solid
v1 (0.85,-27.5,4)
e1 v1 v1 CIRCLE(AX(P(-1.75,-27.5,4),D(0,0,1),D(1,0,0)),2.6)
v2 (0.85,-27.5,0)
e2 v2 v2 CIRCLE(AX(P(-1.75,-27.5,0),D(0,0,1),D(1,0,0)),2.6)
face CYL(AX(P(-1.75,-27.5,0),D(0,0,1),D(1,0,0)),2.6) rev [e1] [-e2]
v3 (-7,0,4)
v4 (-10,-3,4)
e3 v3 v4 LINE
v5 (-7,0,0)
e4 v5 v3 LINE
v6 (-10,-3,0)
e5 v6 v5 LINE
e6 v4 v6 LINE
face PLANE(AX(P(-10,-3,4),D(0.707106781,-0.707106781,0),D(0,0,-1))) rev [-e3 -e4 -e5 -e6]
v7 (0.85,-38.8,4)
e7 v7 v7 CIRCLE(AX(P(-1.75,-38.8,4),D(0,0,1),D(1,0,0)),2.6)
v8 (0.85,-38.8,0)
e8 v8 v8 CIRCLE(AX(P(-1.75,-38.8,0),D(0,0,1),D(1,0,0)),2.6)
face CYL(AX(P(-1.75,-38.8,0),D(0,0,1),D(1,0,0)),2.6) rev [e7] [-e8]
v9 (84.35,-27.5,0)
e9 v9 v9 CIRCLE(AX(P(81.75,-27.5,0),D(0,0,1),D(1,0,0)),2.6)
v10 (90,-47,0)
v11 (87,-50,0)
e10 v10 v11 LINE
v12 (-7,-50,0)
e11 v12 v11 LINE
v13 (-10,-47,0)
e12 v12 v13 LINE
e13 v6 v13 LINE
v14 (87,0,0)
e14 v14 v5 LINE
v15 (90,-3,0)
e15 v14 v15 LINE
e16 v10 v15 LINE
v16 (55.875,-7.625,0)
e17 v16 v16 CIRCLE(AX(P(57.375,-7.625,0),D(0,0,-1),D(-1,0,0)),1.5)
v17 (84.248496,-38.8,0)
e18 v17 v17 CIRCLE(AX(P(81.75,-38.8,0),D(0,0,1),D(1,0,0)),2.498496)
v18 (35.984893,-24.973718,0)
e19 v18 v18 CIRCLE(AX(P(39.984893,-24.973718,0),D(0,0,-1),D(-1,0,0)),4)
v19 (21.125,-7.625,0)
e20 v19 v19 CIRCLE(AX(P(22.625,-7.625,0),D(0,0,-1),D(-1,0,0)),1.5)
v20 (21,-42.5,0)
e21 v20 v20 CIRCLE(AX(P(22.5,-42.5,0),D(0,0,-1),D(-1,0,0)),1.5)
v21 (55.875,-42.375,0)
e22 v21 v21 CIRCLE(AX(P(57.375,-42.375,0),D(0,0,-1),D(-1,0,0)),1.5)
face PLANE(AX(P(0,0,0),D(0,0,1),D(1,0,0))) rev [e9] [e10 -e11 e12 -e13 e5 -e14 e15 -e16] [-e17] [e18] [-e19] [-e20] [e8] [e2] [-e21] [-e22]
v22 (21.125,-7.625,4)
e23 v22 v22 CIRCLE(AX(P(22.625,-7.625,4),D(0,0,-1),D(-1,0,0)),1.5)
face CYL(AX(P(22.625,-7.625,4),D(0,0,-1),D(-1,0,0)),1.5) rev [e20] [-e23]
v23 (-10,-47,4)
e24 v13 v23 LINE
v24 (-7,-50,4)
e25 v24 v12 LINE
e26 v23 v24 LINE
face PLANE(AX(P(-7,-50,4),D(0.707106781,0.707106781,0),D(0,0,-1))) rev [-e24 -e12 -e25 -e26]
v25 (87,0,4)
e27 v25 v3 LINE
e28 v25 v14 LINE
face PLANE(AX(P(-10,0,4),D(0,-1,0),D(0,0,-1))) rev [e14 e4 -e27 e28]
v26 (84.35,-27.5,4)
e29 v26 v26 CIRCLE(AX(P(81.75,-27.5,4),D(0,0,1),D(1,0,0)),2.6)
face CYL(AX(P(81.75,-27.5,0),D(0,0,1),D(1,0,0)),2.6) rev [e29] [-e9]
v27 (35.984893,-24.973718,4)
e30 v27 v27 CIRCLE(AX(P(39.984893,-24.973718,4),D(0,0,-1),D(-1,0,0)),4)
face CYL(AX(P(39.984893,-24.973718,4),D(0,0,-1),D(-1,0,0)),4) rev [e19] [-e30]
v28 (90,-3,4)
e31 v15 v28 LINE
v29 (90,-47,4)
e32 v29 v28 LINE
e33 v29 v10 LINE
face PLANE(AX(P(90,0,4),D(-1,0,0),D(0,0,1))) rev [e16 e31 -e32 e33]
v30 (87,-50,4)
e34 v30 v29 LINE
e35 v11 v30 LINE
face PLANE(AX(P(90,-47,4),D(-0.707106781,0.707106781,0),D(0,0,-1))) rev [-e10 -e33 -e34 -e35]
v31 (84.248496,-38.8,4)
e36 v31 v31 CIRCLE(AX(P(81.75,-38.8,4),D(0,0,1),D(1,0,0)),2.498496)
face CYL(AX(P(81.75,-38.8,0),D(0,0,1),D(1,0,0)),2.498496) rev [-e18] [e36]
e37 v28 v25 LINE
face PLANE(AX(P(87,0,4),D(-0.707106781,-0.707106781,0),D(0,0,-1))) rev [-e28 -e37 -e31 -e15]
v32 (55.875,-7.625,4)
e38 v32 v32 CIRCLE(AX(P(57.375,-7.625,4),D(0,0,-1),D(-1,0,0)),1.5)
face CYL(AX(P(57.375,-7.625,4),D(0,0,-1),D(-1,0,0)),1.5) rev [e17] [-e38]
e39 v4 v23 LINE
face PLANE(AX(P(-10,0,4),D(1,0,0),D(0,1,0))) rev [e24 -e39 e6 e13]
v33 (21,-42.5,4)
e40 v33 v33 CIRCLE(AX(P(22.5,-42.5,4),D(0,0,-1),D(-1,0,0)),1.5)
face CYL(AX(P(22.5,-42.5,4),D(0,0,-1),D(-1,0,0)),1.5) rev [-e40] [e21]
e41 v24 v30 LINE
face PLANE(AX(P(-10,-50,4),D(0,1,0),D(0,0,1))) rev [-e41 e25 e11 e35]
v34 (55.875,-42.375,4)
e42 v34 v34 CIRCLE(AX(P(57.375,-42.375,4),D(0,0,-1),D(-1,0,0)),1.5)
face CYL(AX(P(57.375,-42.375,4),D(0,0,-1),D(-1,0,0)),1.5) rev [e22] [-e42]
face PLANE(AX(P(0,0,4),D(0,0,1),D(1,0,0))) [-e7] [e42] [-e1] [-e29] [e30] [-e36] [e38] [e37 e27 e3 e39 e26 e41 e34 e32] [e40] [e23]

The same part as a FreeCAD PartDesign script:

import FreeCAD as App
import Part
import Sketcher
from FreeCAD import Vector


def edges_at(feature, points):
    """Names of the edges that pass closest to the given points."""
    edges = feature.Shape.Edges
    near = lambda p: min(range(len(edges)), key=lambda i: edges[i].distToShape(Part.Vertex(*p))[0])
    return sorted({f"Edge{near(p) + 1}" for p in points})

doc = App.newDocument("Part")
params = doc.addObject("Spreadsheet::Sheet", "Params")
for row, (alias, value) in enumerate([
    ("sketch1_width", "100 mm"),
    ("sketch1_height", "50 mm"),
    ("pad1_length", "4 mm"),
    ("sketch2_diameter", "3 mm"),
    ("sketch3_diameter", "8 mm"),
    ("chamfer_size", "3 mm"),
    ("sketch4_diameter", "5.2 mm"),
], start=1):
    params.set(f"A{row}", alias)
    params.set(f"B{row}", "=" + value)
    params.setAlias(f"B{row}", alias)

body = doc.addObject("PartDesign::Body", "Body")

sketch1 = body.newObject("Sketcher::SketchObject", "Sketch")
sketch1.AttachmentSupport = (doc.getObject("XY_Plane"), [""])
sketch1.MapMode = "FlatFace"
sketch1.addGeometry(Part.LineSegment(Vector(-10, 0, 0), Vector(-10, -50, 0)), False)
sketch1.addGeometry(Part.LineSegment(Vector(-10, -50, 0), Vector(90, -50, 0)), False)
sketch1.addGeometry(Part.LineSegment(Vector(90, -50, 0), Vector(90, 0, 0)), False)
sketch1.addGeometry(Part.LineSegment(Vector(90, 0, 0), Vector(-10, 0, 0)), False)
sketch1.addConstraint(Sketcher.Constraint("Coincident", 0, 2, 1, 1))
sketch1.addConstraint(Sketcher.Constraint("Coincident", 1, 2, 2, 1))
sketch1.addConstraint(Sketcher.Constraint("Coincident", 2, 2, 3, 1))
sketch1.addConstraint(Sketcher.Constraint("Coincident", 3, 2, 0, 1))
sketch1.addConstraint(Sketcher.Constraint("Vertical", 0))
sketch1.addConstraint(Sketcher.Constraint("Horizontal", 1))
sketch1.addConstraint(Sketcher.Constraint("Vertical", 2))
sketch1.addConstraint(Sketcher.Constraint("Horizontal", 3))
sketch1.addConstraint(Sketcher.Constraint("PointOnObject", 2, 2, -1))
sketch1.addConstraint(Sketcher.Constraint("DistanceX", 1, 1, 1, 2, 100.0))
sketch1.addConstraint(Sketcher.Constraint("DistanceY", 0, 2, 0, 1, 50.0))
sketch1.addConstraint(Sketcher.Constraint("DistanceX", 0, 2, -1, 1, 10.0))
sketch1.setExpression("Constraints[9]", "Params.sketch1_width")
sketch1.setExpression("Constraints[10]", "Params.sketch1_height")
pad1 = body.newObject("PartDesign::Pad", "Pad")
pad1.Profile = sketch1
pad1.setExpression("Length", "Params.pad1_length")

sketch2 = body.newObject("Sketcher::SketchObject", "Sketch001")
sketch2.AttachmentSupport = (doc.getObject("XY_Plane"), [""])
sketch2.MapMode = "FlatFace"
sketch2.addGeometry(Part.Circle(Vector(22.6, -7.6, 0), Vector(0, 0, 1), 1.5), False)
sketch2.addGeometry(Part.Circle(Vector(57.4, -42.4, 0), Vector(0, 0, 1), 1.5), False)
sketch2.addGeometry(Part.Circle(Vector(57.4, -7.6, 0), Vector(0, 0, 1), 1.5), False)
sketch2.addGeometry(Part.Circle(Vector(22.5, -42.5, 0), Vector(0, 0, 1), 1.5), False)
sketch2.addConstraint(Sketcher.Constraint("Equal", 0, 1))
sketch2.addConstraint(Sketcher.Constraint("Equal", 1, 2))
sketch2.addConstraint(Sketcher.Constraint("Equal", 2, 3))
sketch2.addConstraint(Sketcher.Constraint("Horizontal", 0, 3, 2, 3))
sketch2.addConstraint(Sketcher.Constraint("Vertical", 1, 3, 2, 3))
sketch2.addConstraint(Sketcher.Constraint("Diameter", 0, 3.0))
sketch2.addConstraint(Sketcher.Constraint("DistanceX", -1, 1, 3, 3, 22.5))
sketch2.addConstraint(Sketcher.Constraint("DistanceY", 3, 3, -1, 1, 42.5))
sketch2.addConstraint(Sketcher.Constraint("DistanceX", 0, 3, 1, 3, 34.75))
sketch2.addConstraint(Sketcher.Constraint("DistanceY", 1, 3, 0, 3, 34.75))
sketch2.addConstraint(Sketcher.Constraint("DistanceX", -1, 1, 0, 3, 22.625))
sketch2.addConstraint(Sketcher.Constraint("DistanceY", 0, 3, -1, 1, 7.625))
sketch2.setExpression("Constraints[5]", "Params.sketch2_diameter")
pocket1 = body.newObject("PartDesign::Pocket", "Pocket")
pocket1.Profile = sketch2
pocket1.Type = "ThroughAll"
pocket1.Reversed = True

sketch3 = body.newObject("Sketcher::SketchObject", "Sketch002")
sketch3.AttachmentSupport = (doc.getObject("XY_Plane"), [""])
sketch3.MapMode = "FlatFace"
sketch3.addGeometry(Part.Circle(Vector(40, -25, 0), Vector(0, 0, 1), 4), False)
sketch3.addConstraint(Sketcher.Constraint("Diameter", 0, 8.0))
sketch3.addConstraint(Sketcher.Constraint("DistanceY", 0, 3, -1, 1, 24.973718))
sketch3.addConstraint(Sketcher.Constraint("DistanceX", -1, 1, 0, 3, 39.984893))
sketch3.setExpression("Constraints[0]", "Params.sketch3_diameter")
pocket2 = body.newObject("PartDesign::Pocket", "Pocket001")
pocket2.Profile = sketch3
pocket2.Type = "ThroughAll"
pocket2.Reversed = True
doc.recompute()

chamfer = body.newObject("PartDesign::Chamfer", "Chamfer")
chamfer.Base = (pocket2, edges_at(pocket2, [
    (-10, 0, 2),
    (90, 0, 2),
    (90, -50, 2),
    (-10, -50, 2),
]))
chamfer.setExpression("Size", "Params.chamfer_size")

sketch4 = body.newObject("Sketcher::SketchObject", "Sketch003")
sketch4.AttachmentSupport = (doc.getObject("XY_Plane"), [""])
sketch4.MapMode = "FlatFace"
sketch4.AttachmentOffset = App.Placement(Vector(0, 0, 4), App.Rotation())
sketch4.addGeometry(Part.Circle(Vector(81.8, -27.5, 0), Vector(0, 0, 1), 2.6), False)
sketch4.addGeometry(Part.Circle(Vector(81.8, -38.8, 0), Vector(0, 0, 1), 2.5), False)
sketch4.addGeometry(Part.Circle(Vector(-1.8, -27.5, 0), Vector(0, 0, 1), 2.6), False)
sketch4.addGeometry(Part.Circle(Vector(-1.8, -38.8, 0), Vector(0, 0, 1), 2.6), False)
sketch4.addConstraint(Sketcher.Constraint("Equal", 0, 2))
sketch4.addConstraint(Sketcher.Constraint("Equal", 2, 3))
sketch4.addConstraint(Sketcher.Constraint("Horizontal", 0, 3, 2, 3))
sketch4.addConstraint(Sketcher.Constraint("Horizontal", 1, 3, 3, 3))
sketch4.addConstraint(Sketcher.Constraint("Vertical", 0, 3, 1, 3))
sketch4.addConstraint(Sketcher.Constraint("Vertical", 2, 3, 3, 3))
sketch4.addConstraint(Sketcher.Constraint("Diameter", 0, 5.2))
sketch4.addConstraint(Sketcher.Constraint("DistanceY", 0, 3, -1, 1, 27.5))
sketch4.addConstraint(Sketcher.Constraint("DistanceY", 1, 3, -1, 1, 38.8))
sketch4.addConstraint(Sketcher.Constraint("DistanceX", 2, 3, 0, 3, 83.5))
sketch4.addConstraint(Sketcher.Constraint("DistanceX", -1, 1, 0, 3, 81.75))
sketch4.addConstraint(Sketcher.Constraint("Diameter", 1, 4.996993))
sketch4.setExpression("Constraints[6]", "Params.sketch4_diameter")
pocket3 = body.newObject("PartDesign::Pocket", "Pocket002")
pocket3.Profile = sketch4
pocket3.Type = "ThroughAll"

doc.recompute()
